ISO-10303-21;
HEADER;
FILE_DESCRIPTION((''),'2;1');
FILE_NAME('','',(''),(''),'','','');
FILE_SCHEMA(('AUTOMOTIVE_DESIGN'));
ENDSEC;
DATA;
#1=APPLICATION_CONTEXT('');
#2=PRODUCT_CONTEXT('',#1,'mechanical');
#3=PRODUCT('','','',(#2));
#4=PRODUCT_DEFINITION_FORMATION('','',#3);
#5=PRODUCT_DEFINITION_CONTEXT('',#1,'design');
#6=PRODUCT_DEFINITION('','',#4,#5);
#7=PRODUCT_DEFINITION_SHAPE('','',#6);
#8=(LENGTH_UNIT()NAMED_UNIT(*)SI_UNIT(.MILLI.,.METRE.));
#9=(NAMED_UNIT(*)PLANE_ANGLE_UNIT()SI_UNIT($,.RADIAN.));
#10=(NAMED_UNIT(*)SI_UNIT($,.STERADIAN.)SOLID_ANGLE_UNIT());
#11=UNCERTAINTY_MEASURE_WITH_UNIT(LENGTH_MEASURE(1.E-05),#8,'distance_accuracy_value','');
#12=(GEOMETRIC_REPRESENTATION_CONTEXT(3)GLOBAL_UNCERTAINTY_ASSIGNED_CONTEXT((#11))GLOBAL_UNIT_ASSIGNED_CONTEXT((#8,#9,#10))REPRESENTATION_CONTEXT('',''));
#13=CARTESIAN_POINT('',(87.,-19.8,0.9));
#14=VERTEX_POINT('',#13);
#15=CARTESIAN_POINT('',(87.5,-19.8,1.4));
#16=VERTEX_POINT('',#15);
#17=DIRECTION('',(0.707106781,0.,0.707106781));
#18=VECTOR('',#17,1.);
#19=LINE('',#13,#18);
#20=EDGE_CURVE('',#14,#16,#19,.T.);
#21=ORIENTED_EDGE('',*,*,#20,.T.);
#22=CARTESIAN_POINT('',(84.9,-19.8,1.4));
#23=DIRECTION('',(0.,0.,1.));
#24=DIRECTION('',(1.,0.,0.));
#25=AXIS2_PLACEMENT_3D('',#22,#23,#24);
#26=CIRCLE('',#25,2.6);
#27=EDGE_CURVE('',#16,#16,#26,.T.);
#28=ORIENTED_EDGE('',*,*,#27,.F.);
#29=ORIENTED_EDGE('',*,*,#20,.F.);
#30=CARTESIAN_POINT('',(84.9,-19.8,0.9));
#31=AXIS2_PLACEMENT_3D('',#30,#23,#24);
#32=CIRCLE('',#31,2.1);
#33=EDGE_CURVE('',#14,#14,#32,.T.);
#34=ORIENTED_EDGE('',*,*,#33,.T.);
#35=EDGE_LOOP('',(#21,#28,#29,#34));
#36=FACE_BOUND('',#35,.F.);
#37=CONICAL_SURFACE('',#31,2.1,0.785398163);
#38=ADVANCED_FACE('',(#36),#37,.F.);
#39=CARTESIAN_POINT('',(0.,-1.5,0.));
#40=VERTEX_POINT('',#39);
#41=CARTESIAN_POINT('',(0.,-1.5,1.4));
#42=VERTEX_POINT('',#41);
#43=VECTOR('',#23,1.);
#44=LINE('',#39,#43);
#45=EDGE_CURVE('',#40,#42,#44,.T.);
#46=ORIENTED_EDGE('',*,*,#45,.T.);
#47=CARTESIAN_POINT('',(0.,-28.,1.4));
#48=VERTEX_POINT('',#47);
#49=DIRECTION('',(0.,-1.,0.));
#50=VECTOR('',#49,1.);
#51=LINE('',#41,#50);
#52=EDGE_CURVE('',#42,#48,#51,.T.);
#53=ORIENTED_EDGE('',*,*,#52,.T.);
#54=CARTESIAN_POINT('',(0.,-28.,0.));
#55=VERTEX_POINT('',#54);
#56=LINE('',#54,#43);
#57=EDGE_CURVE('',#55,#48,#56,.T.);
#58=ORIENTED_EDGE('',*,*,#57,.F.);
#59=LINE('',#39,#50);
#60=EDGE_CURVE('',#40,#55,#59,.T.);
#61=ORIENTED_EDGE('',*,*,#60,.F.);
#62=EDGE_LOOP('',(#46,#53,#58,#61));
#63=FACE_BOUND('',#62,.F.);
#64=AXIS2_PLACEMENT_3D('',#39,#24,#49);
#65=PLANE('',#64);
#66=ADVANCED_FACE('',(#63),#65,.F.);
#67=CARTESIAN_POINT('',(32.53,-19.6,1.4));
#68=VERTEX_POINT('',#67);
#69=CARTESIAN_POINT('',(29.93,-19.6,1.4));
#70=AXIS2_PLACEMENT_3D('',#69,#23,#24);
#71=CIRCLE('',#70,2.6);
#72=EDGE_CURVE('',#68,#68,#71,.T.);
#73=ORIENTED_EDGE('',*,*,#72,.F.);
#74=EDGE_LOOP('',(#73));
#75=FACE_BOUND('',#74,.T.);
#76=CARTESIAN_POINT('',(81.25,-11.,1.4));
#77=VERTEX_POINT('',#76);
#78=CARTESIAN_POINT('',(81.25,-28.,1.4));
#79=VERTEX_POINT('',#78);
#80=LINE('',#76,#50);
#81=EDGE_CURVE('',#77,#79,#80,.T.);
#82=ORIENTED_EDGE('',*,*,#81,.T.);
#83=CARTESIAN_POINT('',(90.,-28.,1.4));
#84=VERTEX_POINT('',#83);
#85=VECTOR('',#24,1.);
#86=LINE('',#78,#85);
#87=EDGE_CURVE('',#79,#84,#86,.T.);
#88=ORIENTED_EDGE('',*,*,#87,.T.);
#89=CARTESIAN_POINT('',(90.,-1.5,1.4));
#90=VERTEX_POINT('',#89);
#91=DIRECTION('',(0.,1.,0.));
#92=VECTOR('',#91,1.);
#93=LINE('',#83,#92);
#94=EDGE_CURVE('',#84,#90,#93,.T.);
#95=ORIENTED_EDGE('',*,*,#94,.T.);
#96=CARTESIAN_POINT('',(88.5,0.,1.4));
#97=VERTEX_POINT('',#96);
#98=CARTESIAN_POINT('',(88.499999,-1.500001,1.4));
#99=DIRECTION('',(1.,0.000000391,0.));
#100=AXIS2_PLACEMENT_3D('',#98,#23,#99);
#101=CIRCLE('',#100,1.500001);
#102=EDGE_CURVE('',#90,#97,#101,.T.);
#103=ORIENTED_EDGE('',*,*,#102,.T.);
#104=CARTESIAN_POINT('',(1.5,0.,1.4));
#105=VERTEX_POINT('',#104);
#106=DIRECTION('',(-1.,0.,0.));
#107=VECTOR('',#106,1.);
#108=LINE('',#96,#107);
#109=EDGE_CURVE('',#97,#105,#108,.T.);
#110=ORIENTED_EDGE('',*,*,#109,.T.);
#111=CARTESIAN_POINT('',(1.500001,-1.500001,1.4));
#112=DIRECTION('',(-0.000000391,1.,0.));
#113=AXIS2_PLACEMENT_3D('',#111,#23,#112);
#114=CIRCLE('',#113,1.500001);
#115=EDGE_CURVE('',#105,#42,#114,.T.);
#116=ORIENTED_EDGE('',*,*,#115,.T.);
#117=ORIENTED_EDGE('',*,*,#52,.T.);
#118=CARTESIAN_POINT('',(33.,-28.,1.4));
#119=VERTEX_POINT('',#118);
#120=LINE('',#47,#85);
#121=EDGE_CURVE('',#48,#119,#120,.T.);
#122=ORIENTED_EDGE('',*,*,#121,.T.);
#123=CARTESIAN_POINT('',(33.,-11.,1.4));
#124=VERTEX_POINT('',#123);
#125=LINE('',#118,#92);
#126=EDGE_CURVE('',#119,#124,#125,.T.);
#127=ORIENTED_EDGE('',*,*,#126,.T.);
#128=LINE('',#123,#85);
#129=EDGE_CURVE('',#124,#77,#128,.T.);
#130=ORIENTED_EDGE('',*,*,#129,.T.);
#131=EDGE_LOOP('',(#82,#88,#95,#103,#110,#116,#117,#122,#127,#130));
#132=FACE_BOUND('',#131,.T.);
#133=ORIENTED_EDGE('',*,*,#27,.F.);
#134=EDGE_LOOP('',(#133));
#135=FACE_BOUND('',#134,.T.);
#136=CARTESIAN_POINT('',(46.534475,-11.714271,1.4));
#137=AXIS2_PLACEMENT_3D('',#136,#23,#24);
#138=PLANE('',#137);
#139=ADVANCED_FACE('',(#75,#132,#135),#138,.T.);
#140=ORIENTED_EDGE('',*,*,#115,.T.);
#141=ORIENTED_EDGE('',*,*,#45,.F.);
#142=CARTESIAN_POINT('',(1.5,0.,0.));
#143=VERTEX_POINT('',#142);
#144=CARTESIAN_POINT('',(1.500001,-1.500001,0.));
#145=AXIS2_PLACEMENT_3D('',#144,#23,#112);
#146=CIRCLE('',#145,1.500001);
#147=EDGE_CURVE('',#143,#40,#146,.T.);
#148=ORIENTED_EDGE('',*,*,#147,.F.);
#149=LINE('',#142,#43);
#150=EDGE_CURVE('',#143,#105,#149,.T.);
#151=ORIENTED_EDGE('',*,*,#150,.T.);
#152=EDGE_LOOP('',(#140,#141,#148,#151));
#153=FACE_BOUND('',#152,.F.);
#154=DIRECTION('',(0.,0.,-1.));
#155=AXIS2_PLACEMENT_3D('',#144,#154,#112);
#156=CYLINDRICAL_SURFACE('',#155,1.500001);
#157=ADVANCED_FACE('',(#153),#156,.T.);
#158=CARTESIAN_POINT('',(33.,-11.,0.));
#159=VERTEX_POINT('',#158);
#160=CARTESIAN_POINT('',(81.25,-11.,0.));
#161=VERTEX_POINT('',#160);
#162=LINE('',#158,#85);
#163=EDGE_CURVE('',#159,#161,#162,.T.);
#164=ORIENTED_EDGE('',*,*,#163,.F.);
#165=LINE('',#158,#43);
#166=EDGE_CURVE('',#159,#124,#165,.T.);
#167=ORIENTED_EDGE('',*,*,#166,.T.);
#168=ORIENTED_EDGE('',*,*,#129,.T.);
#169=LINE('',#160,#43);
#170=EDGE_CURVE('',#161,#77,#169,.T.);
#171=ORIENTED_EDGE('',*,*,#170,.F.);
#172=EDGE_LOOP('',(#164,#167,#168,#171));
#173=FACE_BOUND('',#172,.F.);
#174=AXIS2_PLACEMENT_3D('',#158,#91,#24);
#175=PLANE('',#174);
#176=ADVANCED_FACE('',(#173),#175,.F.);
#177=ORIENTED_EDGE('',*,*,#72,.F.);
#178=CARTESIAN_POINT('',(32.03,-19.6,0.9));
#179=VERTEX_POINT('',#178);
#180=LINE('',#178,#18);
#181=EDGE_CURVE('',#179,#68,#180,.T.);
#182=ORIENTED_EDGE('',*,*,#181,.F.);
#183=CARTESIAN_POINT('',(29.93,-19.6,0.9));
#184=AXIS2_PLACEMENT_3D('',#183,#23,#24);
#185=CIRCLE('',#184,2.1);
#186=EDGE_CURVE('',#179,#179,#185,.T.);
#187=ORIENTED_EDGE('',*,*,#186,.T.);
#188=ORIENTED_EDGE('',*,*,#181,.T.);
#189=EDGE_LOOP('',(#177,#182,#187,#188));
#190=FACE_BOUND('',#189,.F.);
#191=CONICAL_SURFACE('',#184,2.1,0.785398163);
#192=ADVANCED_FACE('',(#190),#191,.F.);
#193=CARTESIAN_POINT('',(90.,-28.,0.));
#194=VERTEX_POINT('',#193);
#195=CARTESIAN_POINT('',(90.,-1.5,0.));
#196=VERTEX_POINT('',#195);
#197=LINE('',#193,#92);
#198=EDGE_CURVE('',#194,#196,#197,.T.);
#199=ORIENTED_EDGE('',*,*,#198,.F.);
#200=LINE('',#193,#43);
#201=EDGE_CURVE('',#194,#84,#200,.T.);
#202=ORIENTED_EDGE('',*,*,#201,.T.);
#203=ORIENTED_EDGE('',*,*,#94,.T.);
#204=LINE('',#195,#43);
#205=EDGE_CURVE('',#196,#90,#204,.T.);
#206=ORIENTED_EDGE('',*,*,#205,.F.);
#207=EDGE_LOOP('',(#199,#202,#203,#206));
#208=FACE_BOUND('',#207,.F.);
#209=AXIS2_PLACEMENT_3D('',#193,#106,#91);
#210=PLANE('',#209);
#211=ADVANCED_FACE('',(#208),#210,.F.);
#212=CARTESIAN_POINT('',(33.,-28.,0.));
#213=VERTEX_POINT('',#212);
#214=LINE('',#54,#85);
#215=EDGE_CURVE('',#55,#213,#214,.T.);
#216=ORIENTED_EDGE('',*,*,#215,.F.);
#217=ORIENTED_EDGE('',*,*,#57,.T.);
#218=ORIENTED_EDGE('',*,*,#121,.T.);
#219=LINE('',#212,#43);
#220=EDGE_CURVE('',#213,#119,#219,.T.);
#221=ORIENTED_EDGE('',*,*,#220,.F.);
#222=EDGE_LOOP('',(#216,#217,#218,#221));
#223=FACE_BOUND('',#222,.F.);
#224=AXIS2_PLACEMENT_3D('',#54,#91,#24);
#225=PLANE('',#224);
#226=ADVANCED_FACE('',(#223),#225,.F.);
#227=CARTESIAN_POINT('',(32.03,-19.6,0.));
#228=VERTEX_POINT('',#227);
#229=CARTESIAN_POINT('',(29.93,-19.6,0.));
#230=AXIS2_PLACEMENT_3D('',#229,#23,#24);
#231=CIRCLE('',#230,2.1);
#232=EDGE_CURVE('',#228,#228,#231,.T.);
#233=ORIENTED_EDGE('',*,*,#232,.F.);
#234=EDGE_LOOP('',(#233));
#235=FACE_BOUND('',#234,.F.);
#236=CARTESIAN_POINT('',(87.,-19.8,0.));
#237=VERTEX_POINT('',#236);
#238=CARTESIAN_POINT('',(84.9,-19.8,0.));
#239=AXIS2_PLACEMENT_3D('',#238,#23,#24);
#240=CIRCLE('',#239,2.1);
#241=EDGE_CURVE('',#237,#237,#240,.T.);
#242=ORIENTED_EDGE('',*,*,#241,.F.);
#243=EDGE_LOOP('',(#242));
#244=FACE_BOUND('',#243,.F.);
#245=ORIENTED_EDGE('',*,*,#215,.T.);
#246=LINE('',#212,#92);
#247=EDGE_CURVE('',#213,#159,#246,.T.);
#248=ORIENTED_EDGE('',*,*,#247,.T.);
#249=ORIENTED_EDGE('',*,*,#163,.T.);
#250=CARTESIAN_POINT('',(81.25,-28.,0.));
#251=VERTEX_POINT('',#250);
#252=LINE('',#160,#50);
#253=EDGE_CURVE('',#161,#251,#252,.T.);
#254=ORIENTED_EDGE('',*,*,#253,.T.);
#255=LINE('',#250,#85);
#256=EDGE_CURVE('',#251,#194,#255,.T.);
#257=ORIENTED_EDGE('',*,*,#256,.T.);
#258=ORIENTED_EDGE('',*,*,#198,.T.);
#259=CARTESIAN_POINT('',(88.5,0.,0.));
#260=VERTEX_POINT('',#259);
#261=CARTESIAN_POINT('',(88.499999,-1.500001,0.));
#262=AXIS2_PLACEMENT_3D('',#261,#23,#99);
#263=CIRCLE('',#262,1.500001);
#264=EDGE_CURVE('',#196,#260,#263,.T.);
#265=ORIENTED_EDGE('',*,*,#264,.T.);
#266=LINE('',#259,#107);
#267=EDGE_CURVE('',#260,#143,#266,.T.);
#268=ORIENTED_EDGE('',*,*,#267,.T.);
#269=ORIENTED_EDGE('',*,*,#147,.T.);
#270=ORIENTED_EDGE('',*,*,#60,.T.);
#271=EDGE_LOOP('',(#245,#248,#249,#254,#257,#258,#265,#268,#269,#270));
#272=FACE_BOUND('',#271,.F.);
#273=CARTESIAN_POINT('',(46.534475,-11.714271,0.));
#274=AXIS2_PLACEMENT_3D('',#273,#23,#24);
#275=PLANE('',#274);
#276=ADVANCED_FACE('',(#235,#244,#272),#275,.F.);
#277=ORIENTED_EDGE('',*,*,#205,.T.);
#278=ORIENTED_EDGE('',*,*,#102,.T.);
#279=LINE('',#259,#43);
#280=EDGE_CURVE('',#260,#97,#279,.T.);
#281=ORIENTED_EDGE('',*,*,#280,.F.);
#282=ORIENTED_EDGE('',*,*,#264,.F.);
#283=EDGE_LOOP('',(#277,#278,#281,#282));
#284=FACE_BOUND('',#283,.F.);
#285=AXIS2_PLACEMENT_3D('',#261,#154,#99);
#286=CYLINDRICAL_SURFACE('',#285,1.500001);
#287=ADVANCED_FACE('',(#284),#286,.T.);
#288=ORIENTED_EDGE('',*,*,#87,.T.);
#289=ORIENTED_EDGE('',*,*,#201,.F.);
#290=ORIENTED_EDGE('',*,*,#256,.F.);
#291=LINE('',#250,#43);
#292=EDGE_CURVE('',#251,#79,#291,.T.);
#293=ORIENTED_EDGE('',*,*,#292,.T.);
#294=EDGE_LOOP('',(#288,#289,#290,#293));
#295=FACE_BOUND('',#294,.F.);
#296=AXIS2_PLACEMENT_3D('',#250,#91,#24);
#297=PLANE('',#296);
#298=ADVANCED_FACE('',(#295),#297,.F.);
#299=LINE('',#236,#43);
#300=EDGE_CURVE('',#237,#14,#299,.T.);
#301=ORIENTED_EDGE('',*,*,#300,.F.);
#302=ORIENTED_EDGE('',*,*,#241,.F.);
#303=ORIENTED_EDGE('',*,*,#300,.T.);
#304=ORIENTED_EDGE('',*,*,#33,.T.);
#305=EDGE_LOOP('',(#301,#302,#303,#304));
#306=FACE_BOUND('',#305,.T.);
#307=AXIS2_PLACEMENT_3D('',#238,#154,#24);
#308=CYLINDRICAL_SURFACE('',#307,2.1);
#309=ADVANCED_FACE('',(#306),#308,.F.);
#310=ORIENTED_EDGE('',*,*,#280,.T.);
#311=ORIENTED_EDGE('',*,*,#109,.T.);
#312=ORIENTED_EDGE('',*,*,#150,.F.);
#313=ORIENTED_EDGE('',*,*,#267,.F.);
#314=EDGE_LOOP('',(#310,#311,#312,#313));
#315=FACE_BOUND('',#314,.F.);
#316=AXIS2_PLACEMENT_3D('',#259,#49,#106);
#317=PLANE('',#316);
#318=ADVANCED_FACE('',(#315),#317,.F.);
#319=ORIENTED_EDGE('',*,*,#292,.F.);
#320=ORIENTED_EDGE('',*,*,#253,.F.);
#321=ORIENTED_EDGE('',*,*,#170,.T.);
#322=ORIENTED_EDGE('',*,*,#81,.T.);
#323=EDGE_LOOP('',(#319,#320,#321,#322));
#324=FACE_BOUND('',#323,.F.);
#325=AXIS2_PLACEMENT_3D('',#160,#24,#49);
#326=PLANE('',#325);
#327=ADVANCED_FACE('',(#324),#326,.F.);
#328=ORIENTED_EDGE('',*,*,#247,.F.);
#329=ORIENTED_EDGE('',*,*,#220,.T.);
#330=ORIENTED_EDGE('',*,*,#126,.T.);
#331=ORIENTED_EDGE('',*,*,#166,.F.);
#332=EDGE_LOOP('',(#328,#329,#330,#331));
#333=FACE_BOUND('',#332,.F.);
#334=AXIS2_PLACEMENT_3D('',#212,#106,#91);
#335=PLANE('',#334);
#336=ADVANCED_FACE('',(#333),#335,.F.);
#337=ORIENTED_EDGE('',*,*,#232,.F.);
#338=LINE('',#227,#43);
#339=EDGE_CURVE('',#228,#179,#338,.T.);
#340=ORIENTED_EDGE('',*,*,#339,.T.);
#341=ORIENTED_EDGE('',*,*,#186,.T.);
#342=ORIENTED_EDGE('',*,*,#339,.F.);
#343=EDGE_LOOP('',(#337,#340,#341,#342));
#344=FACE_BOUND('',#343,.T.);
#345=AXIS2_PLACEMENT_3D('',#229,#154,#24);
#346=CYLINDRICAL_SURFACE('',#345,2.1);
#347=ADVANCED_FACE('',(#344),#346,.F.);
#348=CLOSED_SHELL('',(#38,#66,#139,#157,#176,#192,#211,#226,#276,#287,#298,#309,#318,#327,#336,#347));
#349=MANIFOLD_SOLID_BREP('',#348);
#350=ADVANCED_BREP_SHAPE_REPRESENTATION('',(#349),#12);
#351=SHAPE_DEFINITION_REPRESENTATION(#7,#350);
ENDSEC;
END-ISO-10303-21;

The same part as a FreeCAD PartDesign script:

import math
import FreeCAD as App
import Part
import Sketcher


def edges_at(feature, points):
    """Names of the edges that pass closest to the given points."""
    edges = feature.Shape.Edges
    near = lambda p: min(range(len(edges)), key=lambda i: edges[i].distToShape(Part.Vertex(*p))[0])
    return sorted({f"Edge{near(p) + 1}" for p in points})

doc = App.newDocument("Part")
body = doc.addObject("PartDesign::Body", "Body")

# Sketch on XY plane
sketch1 = body.newObject("Sketcher::SketchObject", "Sketch")
sketch1.AttachmentSupport = (doc.getObject("XY_Plane"), [""])
sketch1.MapMode = "FlatFace"
sketch1.addGeometry(Part.LineSegment(App.Vector(88.5, 0, 0), App.Vector(1.5, 0, 0)), False)
sketch1.addGeometry(Part.ArcOfCircle(Part.Circle(App.Vector(1.5, -1.5, 0), App.Vector(0, 0, 1), 1.5), math.radians(90), math.radians(180)), False)
sketch1.addGeometry(Part.LineSegment(App.Vector(0, -1.5, 0), App.Vector(0, -28, 0)), False)
sketch1.addGeometry(Part.LineSegment(App.Vector(0, -28, 0), App.Vector(33, -28, 0)), False)
sketch1.addGeometry(Part.LineSegment(App.Vector(33, -28, 0), App.Vector(33, -11, 0)), False)
sketch1.addGeometry(Part.LineSegment(App.Vector(33, -11, 0), App.Vector(81.2, -11, 0)), False)
sketch1.addGeometry(Part.LineSegment(App.Vector(81.2, -11, 0), App.Vector(81.2, -28, 0)), False)
sketch1.addGeometry(Part.LineSegment(App.Vector(81.2, -28, 0), App.Vector(90, -28, 0)), False)
sketch1.addGeometry(Part.LineSegment(App.Vector(90, -28, 0), App.Vector(90, -1.5, 0)), False)
sketch1.addGeometry(Part.ArcOfCircle(Part.Circle(App.Vector(88.5, -1.5, 0), App.Vector(0, 0, 1), 1.5), math.radians(0), math.radians(90)), False)
sketch1.addGeometry(Part.Circle(App.Vector(84.9, -19.8, 0), App.Vector(0, 0, 1), 2.1), False)
sketch1.addGeometry(Part.Circle(App.Vector(29.9, -19.6, 0), App.Vector(0, 0, 1), 2.1), False)
sketch1.addConstraint(Sketcher.Constraint("Tangent", 0, 2, 1, 1))
sketch1.addConstraint(Sketcher.Constraint("Tangent", 1, 2, 2, 1))
sketch1.addConstraint(Sketcher.Constraint("Coincident", 2, 2, 3, 1))
sketch1.addConstraint(Sketcher.Constraint("Coincident", 3, 2, 4, 1))
sketch1.addConstraint(Sketcher.Constraint("Coincident", 4, 2, 5, 1))
sketch1.addConstraint(Sketcher.Constraint("Coincident", 5, 2, 6, 1))
sketch1.addConstraint(Sketcher.Constraint("Coincident", 6, 2, 7, 1))
sketch1.addConstraint(Sketcher.Constraint("Coincident", 7, 2, 8, 1))
sketch1.addConstraint(Sketcher.Constraint("Tangent", 8, 2, 9, 1))
sketch1.addConstraint(Sketcher.Constraint("Tangent", 9, 2, 0, 1))
sketch1.addConstraint(Sketcher.Constraint("Horizontal", 0))
sketch1.addConstraint(Sketcher.Constraint("Vertical", 2))
sketch1.addConstraint(Sketcher.Constraint("Horizontal", 3))
sketch1.addConstraint(Sketcher.Constraint("Vertical", 4))
sketch1.addConstraint(Sketcher.Constraint("Horizontal", 5))
sketch1.addConstraint(Sketcher.Constraint("Vertical", 6))
sketch1.addConstraint(Sketcher.Constraint("Horizontal", 7))
sketch1.addConstraint(Sketcher.Constraint("Vertical", 8))
sketch1.addConstraint(Sketcher.Constraint("Equal", 1, 9))
sketch1.addConstraint(Sketcher.Constraint("Equal", 10, 11))
sketch1.addConstraint(Sketcher.Constraint("PointOnObject", 0, 2, -1))
sketch1.addConstraint(Sketcher.Constraint("PointOnObject", 1, 2, -2))
sketch1.addConstraint(Sketcher.Constraint("Horizontal", 3, 2, 6, 2))
sketch1.addConstraint(Sketcher.Constraint("Diameter", 10, 4.2))
sketch1.addConstraint(Sketcher.Constraint("Radius", 1, 1.500001))
sketch1.addConstraint(Sketcher.Constraint("DistanceX", 0, 2, 0, 1, 87.0))
sketch1.addConstraint(Sketcher.Constraint("DistanceX", 3, 1, 3, 2, 33.0))
sketch1.addConstraint(Sketcher.Constraint("DistanceY", 4, 1, 4, 2, 17.0))
sketch1.addConstraint(Sketcher.Constraint("DistanceY", 2, 2, 2, 1, 26.5))
sketch1.addConstraint(Sketcher.Constraint("DistanceX", 5, 1, 5, 2, 48.25))
sketch1.addConstraint(Sketcher.Constraint("DistanceX", -1, 1, 10, 3, 84.9))
sketch1.addConstraint(Sketcher.Constraint("DistanceY", 10, 3, -1, 1, 19.8))
sketch1.addConstraint(Sketcher.Constraint("DistanceY", 11, 3, -1, 1, 19.6))
sketch1.addConstraint(Sketcher.Constraint("DistanceX", -1, 1, 11, 3, 29.93))
pad1 = body.newObject("PartDesign::Pad", "Pad")
pad1.Profile = sketch1
pad1.Length = 1.4
doc.recompute()

chamfer = body.newObject("PartDesign::Chamfer", "Chamfer")
chamfer.Base = (pad1, edges_at(pad1, [(27.83, -19.6, 1.4), (82.8, -19.8, 1.4)]))
chamfer.Size = 0.5

doc.recompute()
